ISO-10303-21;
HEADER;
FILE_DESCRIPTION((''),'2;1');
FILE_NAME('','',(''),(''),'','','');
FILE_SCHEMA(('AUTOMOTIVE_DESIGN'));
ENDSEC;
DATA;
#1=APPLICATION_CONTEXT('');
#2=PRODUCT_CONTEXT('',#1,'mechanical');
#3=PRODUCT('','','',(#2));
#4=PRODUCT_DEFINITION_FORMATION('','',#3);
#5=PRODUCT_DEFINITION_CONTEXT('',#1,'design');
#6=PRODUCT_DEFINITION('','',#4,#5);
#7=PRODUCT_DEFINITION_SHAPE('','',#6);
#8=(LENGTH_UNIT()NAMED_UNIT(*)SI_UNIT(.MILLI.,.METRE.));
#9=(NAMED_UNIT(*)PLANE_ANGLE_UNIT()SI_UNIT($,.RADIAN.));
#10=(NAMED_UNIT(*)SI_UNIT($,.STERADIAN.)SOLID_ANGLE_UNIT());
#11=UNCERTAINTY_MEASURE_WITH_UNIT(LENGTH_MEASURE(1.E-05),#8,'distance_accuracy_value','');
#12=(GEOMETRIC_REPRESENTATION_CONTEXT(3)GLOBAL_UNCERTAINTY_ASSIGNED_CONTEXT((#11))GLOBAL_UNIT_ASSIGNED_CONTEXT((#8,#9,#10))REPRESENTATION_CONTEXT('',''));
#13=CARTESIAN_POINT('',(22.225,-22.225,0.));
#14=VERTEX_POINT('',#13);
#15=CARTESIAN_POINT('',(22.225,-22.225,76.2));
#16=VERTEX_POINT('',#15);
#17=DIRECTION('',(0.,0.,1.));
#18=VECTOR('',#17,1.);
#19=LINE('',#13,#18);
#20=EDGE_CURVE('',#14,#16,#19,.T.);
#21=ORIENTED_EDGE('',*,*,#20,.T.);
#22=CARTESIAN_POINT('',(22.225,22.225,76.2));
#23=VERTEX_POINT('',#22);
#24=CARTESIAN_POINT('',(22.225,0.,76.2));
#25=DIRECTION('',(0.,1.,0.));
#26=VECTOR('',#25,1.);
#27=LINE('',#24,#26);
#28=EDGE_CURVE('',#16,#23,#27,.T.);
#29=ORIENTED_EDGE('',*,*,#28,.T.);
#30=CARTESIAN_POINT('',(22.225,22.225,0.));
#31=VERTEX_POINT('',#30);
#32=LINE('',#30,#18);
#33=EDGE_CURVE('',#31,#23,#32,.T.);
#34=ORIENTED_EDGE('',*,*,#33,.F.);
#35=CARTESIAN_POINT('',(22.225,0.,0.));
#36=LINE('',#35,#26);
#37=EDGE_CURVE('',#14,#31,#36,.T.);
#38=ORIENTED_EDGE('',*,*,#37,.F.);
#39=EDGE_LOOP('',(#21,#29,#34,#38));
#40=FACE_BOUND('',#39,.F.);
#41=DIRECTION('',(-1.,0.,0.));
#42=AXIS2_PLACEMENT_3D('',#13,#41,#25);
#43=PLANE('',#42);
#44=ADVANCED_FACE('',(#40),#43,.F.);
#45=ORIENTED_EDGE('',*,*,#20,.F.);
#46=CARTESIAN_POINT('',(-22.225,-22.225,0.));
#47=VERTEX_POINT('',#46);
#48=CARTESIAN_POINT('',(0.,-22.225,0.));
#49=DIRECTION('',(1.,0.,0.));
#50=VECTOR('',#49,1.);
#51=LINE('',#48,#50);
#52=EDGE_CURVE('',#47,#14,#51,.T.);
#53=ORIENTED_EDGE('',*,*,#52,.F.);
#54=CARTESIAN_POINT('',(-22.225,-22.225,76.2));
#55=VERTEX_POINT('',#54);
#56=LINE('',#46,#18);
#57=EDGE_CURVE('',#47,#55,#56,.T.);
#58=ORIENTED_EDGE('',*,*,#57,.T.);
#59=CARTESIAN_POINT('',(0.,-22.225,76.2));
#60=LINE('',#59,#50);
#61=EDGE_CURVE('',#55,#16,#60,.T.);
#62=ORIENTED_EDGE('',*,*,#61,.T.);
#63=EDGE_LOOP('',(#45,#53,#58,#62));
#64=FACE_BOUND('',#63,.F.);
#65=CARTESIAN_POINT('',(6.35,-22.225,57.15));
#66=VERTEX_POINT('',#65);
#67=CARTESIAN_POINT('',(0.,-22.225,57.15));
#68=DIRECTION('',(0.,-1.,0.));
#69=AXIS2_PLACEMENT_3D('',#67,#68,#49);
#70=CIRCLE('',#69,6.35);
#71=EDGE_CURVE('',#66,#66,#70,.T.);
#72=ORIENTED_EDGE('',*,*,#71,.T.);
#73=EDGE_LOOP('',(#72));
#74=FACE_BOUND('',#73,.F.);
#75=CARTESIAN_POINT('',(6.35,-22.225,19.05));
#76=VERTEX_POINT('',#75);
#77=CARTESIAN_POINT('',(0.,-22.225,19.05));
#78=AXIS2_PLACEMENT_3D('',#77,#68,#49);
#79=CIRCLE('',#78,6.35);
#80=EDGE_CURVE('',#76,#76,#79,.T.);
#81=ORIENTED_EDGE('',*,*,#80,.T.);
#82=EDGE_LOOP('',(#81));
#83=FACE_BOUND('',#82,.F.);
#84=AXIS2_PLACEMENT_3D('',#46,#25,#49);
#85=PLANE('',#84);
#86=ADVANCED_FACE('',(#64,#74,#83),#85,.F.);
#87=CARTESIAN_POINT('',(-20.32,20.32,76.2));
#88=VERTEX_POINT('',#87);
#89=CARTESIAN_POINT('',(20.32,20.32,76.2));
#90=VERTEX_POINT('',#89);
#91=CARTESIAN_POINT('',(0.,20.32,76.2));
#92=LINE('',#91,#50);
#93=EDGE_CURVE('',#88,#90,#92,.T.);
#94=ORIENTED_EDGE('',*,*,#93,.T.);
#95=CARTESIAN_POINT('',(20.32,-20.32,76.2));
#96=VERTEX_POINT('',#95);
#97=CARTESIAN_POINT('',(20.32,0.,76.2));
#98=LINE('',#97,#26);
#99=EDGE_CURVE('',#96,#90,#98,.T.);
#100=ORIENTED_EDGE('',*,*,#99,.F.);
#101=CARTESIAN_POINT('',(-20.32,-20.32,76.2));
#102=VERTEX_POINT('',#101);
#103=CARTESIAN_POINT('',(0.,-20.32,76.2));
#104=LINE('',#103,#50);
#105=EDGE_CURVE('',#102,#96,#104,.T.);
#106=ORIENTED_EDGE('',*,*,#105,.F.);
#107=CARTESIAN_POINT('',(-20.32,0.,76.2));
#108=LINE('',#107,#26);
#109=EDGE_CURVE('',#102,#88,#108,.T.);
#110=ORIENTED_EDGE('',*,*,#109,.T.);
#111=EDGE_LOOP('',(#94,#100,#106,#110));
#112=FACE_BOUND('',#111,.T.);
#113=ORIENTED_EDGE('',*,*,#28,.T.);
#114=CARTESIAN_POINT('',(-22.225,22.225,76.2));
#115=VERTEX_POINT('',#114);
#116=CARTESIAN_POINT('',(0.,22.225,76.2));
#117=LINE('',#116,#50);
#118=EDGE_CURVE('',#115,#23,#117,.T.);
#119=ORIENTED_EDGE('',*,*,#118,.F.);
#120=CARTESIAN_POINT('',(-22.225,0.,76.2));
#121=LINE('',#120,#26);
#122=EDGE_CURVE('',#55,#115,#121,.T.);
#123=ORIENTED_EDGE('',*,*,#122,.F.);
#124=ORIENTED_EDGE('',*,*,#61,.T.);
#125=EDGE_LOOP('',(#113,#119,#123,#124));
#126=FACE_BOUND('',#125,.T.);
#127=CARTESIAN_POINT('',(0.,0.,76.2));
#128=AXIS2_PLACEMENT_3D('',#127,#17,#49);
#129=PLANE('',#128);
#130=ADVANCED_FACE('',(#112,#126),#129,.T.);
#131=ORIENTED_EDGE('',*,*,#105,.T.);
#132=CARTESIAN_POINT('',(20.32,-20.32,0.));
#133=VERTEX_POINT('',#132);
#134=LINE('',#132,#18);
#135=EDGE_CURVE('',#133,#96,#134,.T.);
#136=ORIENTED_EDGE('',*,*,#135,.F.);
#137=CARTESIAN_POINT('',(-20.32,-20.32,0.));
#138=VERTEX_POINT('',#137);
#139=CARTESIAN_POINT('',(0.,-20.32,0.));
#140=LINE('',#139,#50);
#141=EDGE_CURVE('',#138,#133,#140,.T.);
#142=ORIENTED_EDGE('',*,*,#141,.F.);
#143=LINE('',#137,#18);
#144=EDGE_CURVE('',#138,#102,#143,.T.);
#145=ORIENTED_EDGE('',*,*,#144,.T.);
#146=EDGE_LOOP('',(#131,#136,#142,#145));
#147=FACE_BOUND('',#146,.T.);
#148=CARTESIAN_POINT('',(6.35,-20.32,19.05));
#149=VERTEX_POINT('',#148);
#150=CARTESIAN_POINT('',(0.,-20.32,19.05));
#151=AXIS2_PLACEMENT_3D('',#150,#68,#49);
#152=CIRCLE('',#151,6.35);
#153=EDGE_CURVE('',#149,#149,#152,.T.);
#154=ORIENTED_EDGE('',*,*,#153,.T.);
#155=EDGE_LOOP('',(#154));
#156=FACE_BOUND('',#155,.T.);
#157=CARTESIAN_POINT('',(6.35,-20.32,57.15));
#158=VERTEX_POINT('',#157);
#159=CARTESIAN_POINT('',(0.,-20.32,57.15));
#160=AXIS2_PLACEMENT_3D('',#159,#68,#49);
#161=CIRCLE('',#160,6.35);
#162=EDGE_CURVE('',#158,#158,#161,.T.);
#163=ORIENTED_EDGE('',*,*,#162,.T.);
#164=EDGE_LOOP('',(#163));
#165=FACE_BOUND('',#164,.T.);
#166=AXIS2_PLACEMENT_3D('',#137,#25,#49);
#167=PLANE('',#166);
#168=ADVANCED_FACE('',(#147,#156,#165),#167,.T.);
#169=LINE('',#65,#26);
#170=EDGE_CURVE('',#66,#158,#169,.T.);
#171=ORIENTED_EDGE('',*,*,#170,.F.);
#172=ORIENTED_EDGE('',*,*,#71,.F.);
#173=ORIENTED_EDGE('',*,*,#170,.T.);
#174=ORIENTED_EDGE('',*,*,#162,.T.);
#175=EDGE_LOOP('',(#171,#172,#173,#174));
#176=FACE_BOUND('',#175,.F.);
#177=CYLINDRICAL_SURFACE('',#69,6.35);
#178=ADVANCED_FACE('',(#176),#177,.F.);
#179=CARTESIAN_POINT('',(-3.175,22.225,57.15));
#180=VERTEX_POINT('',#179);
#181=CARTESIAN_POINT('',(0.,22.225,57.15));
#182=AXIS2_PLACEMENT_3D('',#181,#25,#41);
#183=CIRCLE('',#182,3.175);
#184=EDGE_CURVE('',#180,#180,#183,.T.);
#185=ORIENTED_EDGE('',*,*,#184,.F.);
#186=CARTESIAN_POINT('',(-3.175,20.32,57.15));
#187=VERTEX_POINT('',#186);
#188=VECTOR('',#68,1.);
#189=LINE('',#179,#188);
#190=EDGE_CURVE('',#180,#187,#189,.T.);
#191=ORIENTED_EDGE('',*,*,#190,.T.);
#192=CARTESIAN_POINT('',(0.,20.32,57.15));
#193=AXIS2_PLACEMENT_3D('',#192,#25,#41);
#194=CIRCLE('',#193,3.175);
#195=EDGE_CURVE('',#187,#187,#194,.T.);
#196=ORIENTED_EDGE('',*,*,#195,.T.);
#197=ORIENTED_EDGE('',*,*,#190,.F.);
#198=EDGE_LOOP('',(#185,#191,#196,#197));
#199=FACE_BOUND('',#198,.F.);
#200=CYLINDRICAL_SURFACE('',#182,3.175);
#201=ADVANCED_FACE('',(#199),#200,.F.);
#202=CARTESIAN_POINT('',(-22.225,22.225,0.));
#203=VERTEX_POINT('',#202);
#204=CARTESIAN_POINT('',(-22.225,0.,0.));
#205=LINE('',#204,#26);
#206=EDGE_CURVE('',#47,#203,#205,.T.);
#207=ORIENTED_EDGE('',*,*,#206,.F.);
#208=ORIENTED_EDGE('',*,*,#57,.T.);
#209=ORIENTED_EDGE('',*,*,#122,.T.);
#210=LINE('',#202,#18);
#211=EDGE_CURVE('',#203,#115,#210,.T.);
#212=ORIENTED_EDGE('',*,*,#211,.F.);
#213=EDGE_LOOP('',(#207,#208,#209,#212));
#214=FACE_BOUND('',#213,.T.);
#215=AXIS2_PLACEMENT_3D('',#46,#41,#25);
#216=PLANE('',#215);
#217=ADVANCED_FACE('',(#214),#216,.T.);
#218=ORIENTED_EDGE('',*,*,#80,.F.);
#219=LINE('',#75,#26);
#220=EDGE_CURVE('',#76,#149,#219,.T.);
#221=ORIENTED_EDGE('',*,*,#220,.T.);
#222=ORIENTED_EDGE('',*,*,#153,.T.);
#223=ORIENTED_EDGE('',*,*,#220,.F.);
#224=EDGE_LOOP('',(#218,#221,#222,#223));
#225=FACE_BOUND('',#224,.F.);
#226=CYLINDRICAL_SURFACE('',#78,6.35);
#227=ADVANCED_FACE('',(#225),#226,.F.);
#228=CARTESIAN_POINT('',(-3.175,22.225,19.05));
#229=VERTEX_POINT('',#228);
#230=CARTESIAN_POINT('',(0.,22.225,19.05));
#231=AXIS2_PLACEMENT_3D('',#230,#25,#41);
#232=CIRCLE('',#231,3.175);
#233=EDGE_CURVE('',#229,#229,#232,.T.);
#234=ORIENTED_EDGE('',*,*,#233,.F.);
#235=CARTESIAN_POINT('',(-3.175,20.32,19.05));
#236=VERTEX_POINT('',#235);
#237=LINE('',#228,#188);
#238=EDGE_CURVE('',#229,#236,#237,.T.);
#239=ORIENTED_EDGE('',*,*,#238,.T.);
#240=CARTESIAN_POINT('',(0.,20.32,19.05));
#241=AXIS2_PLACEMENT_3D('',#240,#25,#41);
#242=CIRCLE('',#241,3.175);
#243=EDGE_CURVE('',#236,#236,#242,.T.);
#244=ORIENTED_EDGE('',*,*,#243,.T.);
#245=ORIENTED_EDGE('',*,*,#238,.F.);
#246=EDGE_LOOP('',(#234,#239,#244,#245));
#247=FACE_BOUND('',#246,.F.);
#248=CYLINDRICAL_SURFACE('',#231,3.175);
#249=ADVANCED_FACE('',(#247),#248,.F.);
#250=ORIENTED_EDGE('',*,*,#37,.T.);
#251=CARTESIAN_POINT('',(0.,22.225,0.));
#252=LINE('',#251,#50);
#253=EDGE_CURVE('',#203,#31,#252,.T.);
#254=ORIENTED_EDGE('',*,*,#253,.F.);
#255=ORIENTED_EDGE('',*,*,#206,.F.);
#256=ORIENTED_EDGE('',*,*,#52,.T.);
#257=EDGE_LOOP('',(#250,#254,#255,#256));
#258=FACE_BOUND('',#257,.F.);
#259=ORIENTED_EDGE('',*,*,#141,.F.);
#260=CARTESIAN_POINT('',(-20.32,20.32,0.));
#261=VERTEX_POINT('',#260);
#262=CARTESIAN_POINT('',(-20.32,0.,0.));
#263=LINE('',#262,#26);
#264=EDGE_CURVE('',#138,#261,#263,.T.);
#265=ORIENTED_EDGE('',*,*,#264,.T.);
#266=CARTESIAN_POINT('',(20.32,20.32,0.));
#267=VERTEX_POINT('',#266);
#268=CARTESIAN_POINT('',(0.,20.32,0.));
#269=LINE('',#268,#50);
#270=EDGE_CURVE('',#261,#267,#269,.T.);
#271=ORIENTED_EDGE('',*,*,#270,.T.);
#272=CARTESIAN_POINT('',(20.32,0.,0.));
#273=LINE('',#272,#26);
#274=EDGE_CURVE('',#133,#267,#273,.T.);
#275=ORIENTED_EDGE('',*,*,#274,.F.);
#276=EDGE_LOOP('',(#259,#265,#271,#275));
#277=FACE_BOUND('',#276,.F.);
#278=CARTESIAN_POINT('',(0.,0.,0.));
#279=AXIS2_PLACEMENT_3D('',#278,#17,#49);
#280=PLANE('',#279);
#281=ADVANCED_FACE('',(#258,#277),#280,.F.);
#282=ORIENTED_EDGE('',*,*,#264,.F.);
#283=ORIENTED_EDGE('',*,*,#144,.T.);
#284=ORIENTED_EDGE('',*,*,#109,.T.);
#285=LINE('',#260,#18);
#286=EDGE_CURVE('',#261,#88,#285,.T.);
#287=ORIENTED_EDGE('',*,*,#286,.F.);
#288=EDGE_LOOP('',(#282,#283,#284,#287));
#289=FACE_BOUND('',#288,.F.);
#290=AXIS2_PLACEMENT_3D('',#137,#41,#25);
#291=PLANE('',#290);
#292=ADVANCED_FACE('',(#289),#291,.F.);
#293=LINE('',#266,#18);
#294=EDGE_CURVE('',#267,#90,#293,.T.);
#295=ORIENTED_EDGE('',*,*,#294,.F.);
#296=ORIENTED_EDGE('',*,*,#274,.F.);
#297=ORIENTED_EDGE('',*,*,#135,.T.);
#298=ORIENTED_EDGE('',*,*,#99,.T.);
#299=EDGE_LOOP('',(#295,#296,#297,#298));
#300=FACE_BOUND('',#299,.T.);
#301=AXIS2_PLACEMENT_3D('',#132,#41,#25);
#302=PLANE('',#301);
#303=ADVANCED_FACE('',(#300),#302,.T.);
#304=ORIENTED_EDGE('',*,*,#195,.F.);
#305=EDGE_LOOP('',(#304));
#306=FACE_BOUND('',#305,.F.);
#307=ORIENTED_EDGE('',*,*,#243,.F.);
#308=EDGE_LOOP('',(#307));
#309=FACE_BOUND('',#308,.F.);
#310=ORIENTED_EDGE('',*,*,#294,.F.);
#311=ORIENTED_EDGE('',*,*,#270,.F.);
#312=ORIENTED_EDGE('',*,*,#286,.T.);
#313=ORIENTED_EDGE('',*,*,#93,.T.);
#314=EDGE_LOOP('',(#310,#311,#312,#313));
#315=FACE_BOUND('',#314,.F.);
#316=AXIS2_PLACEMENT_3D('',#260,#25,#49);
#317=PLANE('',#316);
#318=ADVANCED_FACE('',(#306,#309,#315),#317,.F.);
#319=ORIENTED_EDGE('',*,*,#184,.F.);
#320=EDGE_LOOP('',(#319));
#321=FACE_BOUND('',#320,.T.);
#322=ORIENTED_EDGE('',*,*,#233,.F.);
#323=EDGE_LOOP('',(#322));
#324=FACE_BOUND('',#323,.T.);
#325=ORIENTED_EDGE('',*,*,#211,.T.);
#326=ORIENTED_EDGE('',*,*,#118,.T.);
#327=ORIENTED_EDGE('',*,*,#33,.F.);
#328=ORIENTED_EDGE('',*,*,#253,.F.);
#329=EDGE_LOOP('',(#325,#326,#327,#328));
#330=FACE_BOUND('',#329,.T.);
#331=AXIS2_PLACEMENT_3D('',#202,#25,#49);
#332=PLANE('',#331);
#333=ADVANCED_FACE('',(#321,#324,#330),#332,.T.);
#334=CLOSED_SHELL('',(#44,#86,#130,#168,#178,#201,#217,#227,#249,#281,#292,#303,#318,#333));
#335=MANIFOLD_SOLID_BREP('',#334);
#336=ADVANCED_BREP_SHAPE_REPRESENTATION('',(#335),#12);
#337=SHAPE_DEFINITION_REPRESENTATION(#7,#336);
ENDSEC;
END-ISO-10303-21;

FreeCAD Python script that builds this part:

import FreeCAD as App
import Part
import Sketcher
from FreeCAD import Vector
Q = App.Units.Quantity


def add_polygon(sketch, points):
    """Adds a closed chain of lines whose ends are joined by coincident constraints."""
    first, n = sketch.GeometryCount, len(points)
    for a, b in zip(points, points[1:] + points[:1]):
        sketch.addGeometry(Part.LineSegment(App.Vector(*a, 0), App.Vector(*b, 0)), False)
    for i in range(n):
        sketch.addConstraint(Sketcher.Constraint("Coincident", first + i, 2, first + (i + 1) % n, 1))

doc = App.newDocument("Part")
body = doc.addObject("PartDesign::Body", "Body")

# Sketch on XY plane
sketch1 = body.newObject("Sketcher::SketchObject", "Sketch")
sketch1.AttachmentSupport = (doc.getObject("XY_Plane"), [""])
sketch1.MapMode = "FlatFace"
add_polygon(sketch1, [(-22, 22), (-22, -22), (22, -22), (22, 22)])  # lines 0-3
add_polygon(sketch1, [(20, -20), (-20, -20), (-20, 20), (20, 20)])  # lines 4-7
sketch1.addConstraint([
    Sketcher.Constraint("Vertical", 0),
    Sketcher.Constraint("Horizontal", 1),
    Sketcher.Constraint("Vertical", 2),
    Sketcher.Constraint("Horizontal", 3),
    Sketcher.Constraint("Horizontal", 4),
    Sketcher.Constraint("Vertical", 5),
    Sketcher.Constraint("Horizontal", 6),
    Sketcher.Constraint("Vertical", 7),
    Sketcher.Constraint("Symmetric", 0, 2, 2, 2, -1, 1),
    Sketcher.Constraint("Symmetric", 4, 2, 6, 2, -1, 1),
    Sketcher.Constraint("Equal", 3, 0),
    Sketcher.Constraint("Equal", 6, 5),
    Sketcher.Constraint("DistanceX", 4, 2, 4, 1, Q("1.6 in")),
    Sketcher.Constraint("DistanceX", 1, 1, 1, 2, Q("1.75 in")),
])
pad1 = body.newObject("PartDesign::Pad", "Pad")
pad1.Profile = sketch1
pad1.Length = Q("3 in")

# Sketch on XZ plane
sketch2 = body.newObject("Sketcher::SketchObject", "Sketch001")
sketch2.AttachmentSupport = (doc.getObject("XZ_Plane"), [""])
sketch2.MapMode = "FlatFace"
sketch2.AttachmentOffset = App.Placement(Vector(0, 0, 0.875 * 25.4), App.Rotation())
sketch2.addGeometry([
    Part.Circle(Vector(0, 57, 0), Vector(0, 0, 1), 6),
    Part.Circle(Vector(0, 19, 0), Vector(0, 0, 1), 6),
], False)
sketch2.addConstraint([
    Sketcher.Constraint("Equal", 0, 1),
    Sketcher.Constraint("PointOnObject", 0, 3, -2),
    Sketcher.Constraint("PointOnObject", 1, 3, -2),
    Sketcher.Constraint("Diameter", 0, Q("0.5 in")),
    Sketcher.Constraint("DistanceY", 1, 3, 0, 3, Q("1.5 in")),
    Sketcher.Constraint("DistanceY", -1, 1, 0, 3, Q("2.25 in")),
])
pocket1 = body.newObject("PartDesign::Pocket", "Pocket")
pocket1.Profile = sketch2
pocket1.Length = Q("1 in")

# Sketch on XZ plane
sketch3 = body.newObject("Sketcher::SketchObject", "Sketch002")
sketch3.AttachmentSupport = (doc.getObject("XZ_Plane"), [""])
sketch3.MapMode = "FlatFace"
sketch3.AttachmentOffset = App.Placement(Vector(0, 0, -0.875 * 25.4), App.Rotation())
sketch3.addGeometry([
    Part.Circle(Vector(0, 57.1, 0), Vector(0, 0, 1), 3.2),
    Part.Circle(Vector(0, 19.1, 0), Vector(0, 0, 1), 3.2),
], False)
sketch3.addConstraint([
    Sketcher.Constraint("Equal", 0, 1),
    Sketcher.Constraint("PointOnObject", 0, 3, -2),
    Sketcher.Constraint("PointOnObject", 1, 3, -2),
    Sketcher.Constraint("Diameter", 0, Q("0.25 in")),
    Sketcher.Constraint("DistanceY", 1, 3, 0, 3, Q("1.5 in")),
    Sketcher.Constraint("DistanceY", -1, 1, 0, 3, Q("2.25 in")),
])
pocket2 = body.newObject("PartDesign::Pocket", "Pocket001")
pocket2.Profile = sketch3
pocket2.Length = Q("1 in")
pocket2.Reversed = True

doc.recompute()
